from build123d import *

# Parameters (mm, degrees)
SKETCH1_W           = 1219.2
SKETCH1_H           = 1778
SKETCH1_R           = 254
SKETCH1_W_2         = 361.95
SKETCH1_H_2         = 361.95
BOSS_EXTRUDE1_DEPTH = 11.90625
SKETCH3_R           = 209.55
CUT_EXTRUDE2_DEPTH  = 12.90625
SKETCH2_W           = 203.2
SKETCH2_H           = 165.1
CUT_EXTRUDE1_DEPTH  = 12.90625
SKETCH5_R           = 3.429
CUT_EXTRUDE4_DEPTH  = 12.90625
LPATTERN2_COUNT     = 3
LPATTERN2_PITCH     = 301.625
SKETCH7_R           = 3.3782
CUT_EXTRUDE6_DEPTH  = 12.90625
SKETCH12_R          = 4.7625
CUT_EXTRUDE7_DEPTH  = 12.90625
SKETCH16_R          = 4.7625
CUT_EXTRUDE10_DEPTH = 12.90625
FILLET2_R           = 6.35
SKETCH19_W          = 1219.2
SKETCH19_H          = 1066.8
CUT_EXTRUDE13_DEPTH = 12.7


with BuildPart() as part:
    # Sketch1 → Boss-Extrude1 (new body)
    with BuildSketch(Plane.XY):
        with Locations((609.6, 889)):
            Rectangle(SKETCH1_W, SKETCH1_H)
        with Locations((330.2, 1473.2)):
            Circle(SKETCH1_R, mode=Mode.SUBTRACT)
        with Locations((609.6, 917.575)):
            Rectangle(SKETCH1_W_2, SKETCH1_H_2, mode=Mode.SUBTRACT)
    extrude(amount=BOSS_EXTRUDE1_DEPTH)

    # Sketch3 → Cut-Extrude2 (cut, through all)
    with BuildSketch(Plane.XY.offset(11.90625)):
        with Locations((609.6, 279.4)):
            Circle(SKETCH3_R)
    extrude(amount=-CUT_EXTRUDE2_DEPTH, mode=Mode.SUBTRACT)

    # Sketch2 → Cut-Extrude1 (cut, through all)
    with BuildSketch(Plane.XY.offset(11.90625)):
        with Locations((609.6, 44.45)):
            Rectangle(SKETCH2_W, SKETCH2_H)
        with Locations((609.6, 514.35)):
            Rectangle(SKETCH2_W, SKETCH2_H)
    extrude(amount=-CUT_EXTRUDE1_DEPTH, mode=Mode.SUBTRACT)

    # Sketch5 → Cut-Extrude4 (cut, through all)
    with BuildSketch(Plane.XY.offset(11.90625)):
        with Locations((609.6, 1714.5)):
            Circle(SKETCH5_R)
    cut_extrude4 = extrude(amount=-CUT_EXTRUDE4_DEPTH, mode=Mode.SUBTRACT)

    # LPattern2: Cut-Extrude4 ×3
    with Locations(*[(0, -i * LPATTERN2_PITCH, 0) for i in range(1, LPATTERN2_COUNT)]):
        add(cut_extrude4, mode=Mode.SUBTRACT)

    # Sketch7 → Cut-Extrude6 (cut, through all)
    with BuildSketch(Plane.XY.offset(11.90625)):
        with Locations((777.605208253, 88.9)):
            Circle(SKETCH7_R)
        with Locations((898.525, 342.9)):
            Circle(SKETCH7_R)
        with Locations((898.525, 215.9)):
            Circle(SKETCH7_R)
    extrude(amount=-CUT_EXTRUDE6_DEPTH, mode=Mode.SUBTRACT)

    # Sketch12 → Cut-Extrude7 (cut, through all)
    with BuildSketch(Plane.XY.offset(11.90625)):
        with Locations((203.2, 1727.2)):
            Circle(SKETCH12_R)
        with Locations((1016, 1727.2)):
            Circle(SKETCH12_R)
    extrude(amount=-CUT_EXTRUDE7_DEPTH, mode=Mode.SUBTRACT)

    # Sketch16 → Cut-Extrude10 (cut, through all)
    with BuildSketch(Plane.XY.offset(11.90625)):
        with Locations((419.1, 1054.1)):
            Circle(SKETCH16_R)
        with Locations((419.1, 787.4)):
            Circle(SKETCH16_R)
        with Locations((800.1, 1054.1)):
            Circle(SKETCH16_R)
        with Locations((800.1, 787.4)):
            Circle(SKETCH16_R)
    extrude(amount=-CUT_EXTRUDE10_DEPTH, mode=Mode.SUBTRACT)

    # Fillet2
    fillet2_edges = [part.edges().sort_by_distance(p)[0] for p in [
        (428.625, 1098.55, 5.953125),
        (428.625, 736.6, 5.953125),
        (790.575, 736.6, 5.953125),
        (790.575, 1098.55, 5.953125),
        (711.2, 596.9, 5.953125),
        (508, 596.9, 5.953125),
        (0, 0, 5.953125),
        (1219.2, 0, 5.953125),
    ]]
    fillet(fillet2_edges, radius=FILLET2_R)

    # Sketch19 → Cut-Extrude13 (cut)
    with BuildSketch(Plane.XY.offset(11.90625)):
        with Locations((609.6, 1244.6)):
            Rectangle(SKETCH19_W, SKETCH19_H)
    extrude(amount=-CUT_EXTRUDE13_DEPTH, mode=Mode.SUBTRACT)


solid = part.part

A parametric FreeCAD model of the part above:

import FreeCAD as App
import Part
import Sketcher

V = App.Vector
Q = App.Units.Quantity


def edges_at(feature, points):
    """Names of the edges that pass closest to the given points."""
    edges = feature.Shape.Edges
    near = lambda p: min(range(len(edges)), key=lambda i: edges[i].distToShape(Part.Vertex(*p))[0])
    return sorted({f"Edge{near(p) + 1}" for p in points})

doc = App.newDocument("Part")
body = doc.addObject("PartDesign::Body", "Body")

# Sketch on XY plane
sketch1 = doc.addObject("Sketcher::SketchObject", "Sketch")
body.addObject(sketch1)
sketch1.AttachmentSupport = (doc.XY_Plane, [""])
sketch1.MapMode = "FlatFace"
sketch1.addGeometry([
    Part.LineSegment(V(0, 1778, 0), V(0, 0, 0)),  # 0
    Part.LineSegment(V(0, 0, 0), V(1219.2, 0, 0)),  # 1
    Part.LineSegment(V(1219.2, 0, 0), V(1219.2, 1778, 0)),  # 2
    Part.LineSegment(V(1219.2, 1778, 0), V(0, 1778, 0)),  # 3
    Part.LineSegment(V(790.575, 736.6, 0), V(428.625, 736.6, 0)),  # 4
    Part.LineSegment(V(428.625, 736.6, 0), V(428.625, 1098.55, 0)),  # 5
    Part.LineSegment(V(428.625, 1098.55, 0), V(790.575, 1098.55, 0)),  # 6
    Part.LineSegment(V(790.575, 1098.55, 0), V(790.575, 736.6, 0)),  # 7
    Part.Circle(V(330.2, 1473.2, 0), V(0, 0, 1), 254),  # 8
], False)
sketch1.addConstraint([
    Sketcher.Constraint("Coincident", 0, 2, 1, 1),
    Sketcher.Constraint("Coincident", 1, 2, 2, 1),
    Sketcher.Constraint("Coincident", 2, 2, 3, 1),
    Sketcher.Constraint("Coincident", 3, 2, 0, 1),
    Sketcher.Constraint("Coincident", 4, 2, 5, 1),
    Sketcher.Constraint("Coincident", 5, 2, 6, 1),
    Sketcher.Constraint("Coincident", 6, 2, 7, 1),
    Sketcher.Constraint("Coincident", 7, 2, 4, 1),
    Sketcher.Constraint("Vertical", 0),
    Sketcher.Constraint("Horizontal", 1),
    Sketcher.Constraint("Vertical", 2),
    Sketcher.Constraint("Horizontal", 3),
    Sketcher.Constraint("Horizontal", 4),
    Sketcher.Constraint("Vertical", 5),
    Sketcher.Constraint("Horizontal", 6),
    Sketcher.Constraint("Vertical", 7),
    Sketcher.Constraint("Coincident", 0, 2, -1, 1),
    Sketcher.Constraint("Equal", 6, 5),
    Sketcher.Constraint("Diameter", 8, Q("20 in")),
    Sketcher.Constraint("DistanceX", 1, 1, 1, 2, Q("48 in")),
    Sketcher.Constraint("DistanceY", 0, 2, 0, 1, Q("70 in")),
    Sketcher.Constraint("DistanceX", -1, 1, 8, 3, Q("13 in")),
    Sketcher.Constraint("DistanceY", -1, 1, 8, 3, Q("58 in")),
    Sketcher.Constraint("DistanceY", -1, 1, 4, 2, Q("29 in")),
    Sketcher.Constraint("DistanceX", 4, 2, 4, 1, Q("14.25 in")),
    Sketcher.Constraint("DistanceX", -1, 1, 4, 2, Q("16.875 in")),
])
pad1 = doc.addObject("PartDesign::Pad", "Pad")
body.addObject(pad1)
pad1.Profile = sketch1
pad1.Length = Q("0.46875 in")

# Sketch on XY plane
sketch2 = doc.addObject("Sketcher::SketchObject", "Sketch001")
body.addObject(sketch2)
sketch2.AttachmentSupport = (doc.XY_Plane, [""])
sketch2.MapMode = "FlatFace"
sketch2.AttachmentOffset = App.Placement(V(0, 0, 0.46875 * 25.4), App.Rotation())
sketch2.addGeometry(Part.Circle(V(609.6, 279.4, 0), V(0, 0, 1), 209.55), False)
sketch2.addConstraint([
    Sketcher.Constraint("Diameter", 0, Q("16.5 in")),
    Sketcher.Constraint("DistanceX", -1, 1, 0, 3, Q("24 in")),
    Sketcher.Constraint("DistanceY", -1, 1, 0, 3, Q("11 in")),
])
pocket1 = doc.addObject("PartDesign::Pocket", "Pocket")
body.addObject(pocket1)
pocket1.Profile = sketch2
pocket1.Type = "ThroughAll"

# Sketch on XY plane
sketch3 = doc.addObject("Sketcher::SketchObject", "Sketch002")
body.addObject(sketch3)
sketch3.AttachmentSupport = (doc.XY_Plane, [""])
sketch3.MapMode = "FlatFace"
sketch3.AttachmentOffset = App.Placement(V(0, 0, 0.46875 * 25.4), App.Rotation())
sketch3.addGeometry([
    Part.LineSegment(V(508, 127, 0), V(508, -38.1, 0)),  # 0
    Part.LineSegment(V(508, -38.1, 0), V(711.2, -38.1, 0)),  # 1
    Part.LineSegment(V(711.2, -38.1, 0), V(711.2, 127, 0)),  # 2
    Part.LineSegment(V(711.2, 127, 0), V(508, 127, 0)),  # 3
    Part.LineSegment(V(508, 596.9, 0), V(508, 431.8, 0)),  # 4
    Part.LineSegment(V(508, 431.8, 0), V(711.2, 431.8, 0)),  # 5
    Part.LineSegment(V(711.2, 431.8, 0), V(711.2, 596.9, 0)),  # 6
    Part.LineSegment(V(711.2, 596.9, 0), V(508, 596.9, 0)),  # 7
], False)
sketch3.addConstraint([
    Sketcher.Constraint("Coincident", 0, 2, 1, 1),
    Sketcher.Constraint("Coincident", 1, 2, 2, 1),
    Sketcher.Constraint("Coincident", 2, 2, 3, 1),
    Sketcher.Constraint("Coincident", 3, 2, 0, 1),
    Sketcher.Constraint("Coincident", 4, 2, 5, 1),
    Sketcher.Constraint("Coincident", 5, 2, 6, 1),
    Sketcher.Constraint("Coincident", 6, 2, 7, 1),
    Sketcher.Constraint("Coincident", 7, 2, 4, 1),
    Sketcher.Constraint("Vertical", 0),
    Sketcher.Constraint("Horizontal", 1),
    Sketcher.Constraint("Vertical", 2),
    Sketcher.Constraint("Horizontal", 3),
    Sketcher.Constraint("Vertical", 4),
    Sketcher.Constraint("Horizontal", 5),
    Sketcher.Constraint("Vertical", 6),
    Sketcher.Constraint("Horizontal", 7),
    Sketcher.Constraint("Vertical", 3, 2, 4, 2),
    Sketcher.Constraint("Vertical", 2, 2, 5, 2),
    Sketcher.Constraint("Equal", 2, 4),
    Sketcher.Constraint("DistanceX", 1, 1, 1, 2, Q("8 in")),
    Sketcher.Constraint("DistanceY", 0, 2, 0, 1, Q("6.5 in")),
    Sketcher.Constraint("DistanceX", -1, 1, 0, 2, Q("20 in")),
    Sketcher.Constraint("DistanceY", -1, 1, 2, 2, Q("5 in")),
    Sketcher.Constraint("DistanceY", -1, 1, 4, 2, Q("17 in")),
])
pocket2 = doc.addObject("PartDesign::Pocket", "Pocket001")
body.addObject(pocket2)
pocket2.Profile = sketch3
pocket2.Type = "ThroughAll"

# Sketch on XY plane
sketch4 = doc.addObject("Sketcher::SketchObject", "Sketch003")
body.addObject(sketch4)
sketch4.AttachmentSupport = (doc.XY_Plane, [""])
sketch4.MapMode = "FlatFace"
sketch4.AttachmentOffset = App.Placement(V(0, 0, 0.46875 * 25.4), App.Rotation())
sketch4.addGeometry(Part.Circle(V(609.6, 1714.5, 0), V(0, 0, 1), 3.429), False)
sketch4.addConstraint([
    Sketcher.Constraint("Diameter", 0, Q("0.27 in")),
    Sketcher.Constraint("DistanceX", -1, 1, 0, 3, Q("24 in")),
    Sketcher.Constraint("DistanceY", -1, 1, 0, 3, Q("67.5 in")),
])
pocket3 = doc.addObject("PartDesign::Pocket", "Pocket002")
body.addObject(pocket3)
pocket3.Profile = sketch4
pocket3.Type = "ThroughAll"
doc.recompute()

linearpattern = doc.addObject("PartDesign::LinearPattern", "LinearPattern")
body.addObject(linearpattern)
linearpattern.Originals = [pocket3]
linearpattern.Direction = (doc.Y_Axis, [""])
linearpattern.Mode = "offset"
linearpattern.Offset = Q("11.875 in")
linearpattern.Occurrences = 3
linearpattern.Reversed = True
body.Tip = linearpattern

# Sketch on XY plane
sketch5 = doc.addObject("Sketcher::SketchObject", "Sketch004")
body.addObject(sketch5)
sketch5.AttachmentSupport = (doc.XY_Plane, [""])
sketch5.MapMode = "FlatFace"
sketch5.AttachmentOffset = App.Placement(V(0, 0, 0.46875 * 25.4), App.Rotation())
sketch5.addGeometry([
    Part.Circle(V(777.605208, 88.9, 0), V(0, 0, 1), 3.3782),
    Part.Circle(V(898.525, 342.9, 0), V(0, 0, 1), 3.3782),
    Part.Circle(V(898.525, 215.9, 0), V(0, 0, 1), 3.3782),
], False)
sketch5.addConstraint([
    Sketcher.Constraint("Equal", 0, 1),
    Sketcher.Constraint("Equal", 1, 2),
    Sketcher.Constraint("Vertical", 1, 3, 2, 3),
    Sketcher.Constraint("Diameter", 0, Q("0.266 in")),
    Sketcher.Constraint("DistanceY", 0, 3, 1, 3, Q("10 in")),
    Sketcher.Constraint("DistanceY", 2, 3, 1, 3, Q("5 in")),
    Sketcher.Constraint("DistanceY", -1, 1, 0, 3, Q("3.5 in")),
    Sketcher.Constraint("DistanceX", -1, 1, 1, 3, Q("35.375 in")),
    Sketcher.Constraint("DistanceX", -1, 1, 0, 3, Q("777.605208 mm")),
])
pocket4 = doc.addObject("PartDesign::Pocket", "Pocket003")
body.addObject(pocket4)
pocket4.Profile = sketch5
pocket4.Type = "ThroughAll"

# Sketch on XY plane
sketch6 = doc.addObject("Sketcher::SketchObject", "Sketch005")
body.addObject(sketch6)
sketch6.AttachmentSupport = (doc.XY_Plane, [""])
sketch6.MapMode = "FlatFace"
sketch6.AttachmentOffset = App.Placement(V(0, 0, 0.46875 * 25.4), App.Rotation())
sketch6.addGeometry([
    Part.Circle(V(203.2, 1727.2, 0), V(0, 0, 1), 4.7625),
    Part.Circle(V(1016, 1727.2, 0), V(0, 0, 1), 4.7625),
], False)
sketch6.addConstraint([
    Sketcher.Constraint("Equal", 0, 1),
    Sketcher.Constraint("Horizontal", 0, 3, 1, 3),
    Sketcher.Constraint("Diameter", 0, Q("0.375 in")),
    Sketcher.Constraint("DistanceX", -1, 1, 0, 3, Q("8 in")),
    Sketcher.Constraint("DistanceY", -1, 1, 0, 3, Q("68 in")),
    Sketcher.Constraint("DistanceX", -1, 1, 1, 3, Q("40 in")),
])
pocket5 = doc.addObject("PartDesign::Pocket", "Pocket004")
body.addObject(pocket5)
pocket5.Profile = sketch6
pocket5.Type = "ThroughAll"

# Sketch on XY plane
sketch7 = doc.addObject("Sketcher::SketchObject", "Sketch006")
body.addObject(sketch7)
sketch7.AttachmentSupport = (doc.XY_Plane, [""])
sketch7.MapMode = "FlatFace"
sketch7.AttachmentOffset = App.Placement(V(0, 0, 0.46875 * 25.4), App.Rotation())
sketch7.addGeometry([
    Part.Circle(V(419.1, 1054.1, 0), V(0, 0, 1), 4.7625),
    Part.Circle(V(419.1, 787.4, 0), V(0, 0, 1), 4.7625),
    Part.Circle(V(800.1, 1054.1, 0), V(0, 0, 1), 4.7625),
    Part.Circle(V(800.1, 787.4, 0), V(0, 0, 1), 4.7625),
], False)
sketch7.addConstraint([
    Sketcher.Constraint("Equal", 0, 1),
    Sketcher.Constraint("Equal", 1, 2),
    Sketcher.Constraint("Equal", 2, 3),
    Sketcher.Constraint("Horizontal", 0, 3, 2, 3),
    Sketcher.Constraint("Horizontal", 1, 3, 3, 3),
    Sketcher.Constraint("Vertical", 0, 3, 1, 3),
    Sketcher.Constraint("Vertical", 2, 3, 3, 3),
    Sketcher.Constraint("Diameter", 0, Q("0.375 in")),
    Sketcher.Constraint("DistanceY", -1, 1, 1, 3, Q("31 in")),
    Sketcher.Constraint("DistanceX", 0, 3, 2, 3, Q("15 in")),
    Sketcher.Constraint("DistanceX", -1, 1, 0, 3, Q("16.5 in")),
    Sketcher.Constraint("DistanceY", -1, 1, 0, 3, Q("41.5 in")),
])
pocket6 = doc.addObject("PartDesign::Pocket", "Pocket005")
body.addObject(pocket6)
pocket6.Profile = sketch7
pocket6.Type = "ThroughAll"
doc.recompute()

fillet = doc.addObject("PartDesign::Fillet", "Fillet")
body.addObject(fillet)
fillet.Base = (pocket6, edges_at(pocket6, [
    (428.625, 1098.55, 5.953),
    (428.625, 736.6, 5.953),
    (790.575, 736.6, 5.953),
    (790.575, 1098.55, 5.953),
    (711.2, 596.9, 5.953),
    (508, 596.9, 5.953),
    (0, 0, 5.953),
    (1219.2, 0, 5.953),
]))
fillet.Radius = Q("0.25 in")

# Sketch on XY plane
sketch8 = doc.addObject("Sketcher::SketchObject", "Sketch007")
body.addObject(sketch8)
sketch8.AttachmentSupport = (doc.XY_Plane, [""])
sketch8.MapMode = "FlatFace"
sketch8.AttachmentOffset = App.Placement(V(0, 0, 0.46875 * 25.4), App.Rotation())
sketch8.addGeometry([
    Part.LineSegment(V(0, 1778, 0), V(0, 711.2, 0)),
    Part.LineSegment(V(0, 711.2, 0), V(1219.2, 711.2, 0)),
    Part.LineSegment(V(1219.2, 711.2, 0), V(1219.2, 1778, 0)),
    Part.LineSegment(V(1219.2, 1778, 0), V(0, 1778, 0)),
], False)
sketch8.addConstraint([
    Sketcher.Constraint("Coincident", 0, 2, 1, 1),
    Sketcher.Constraint("Coincident", 1, 2, 2, 1),
    Sketcher.Constraint("Coincident", 2, 2, 3, 1),
    Sketcher.Constraint("Coincident", 3, 2, 0, 1),
    Sketcher.Constraint("Vertical", 0),
    Sketcher.Constraint("Horizontal", 1),
    Sketcher.Constraint("Vertical", 2),
    Sketcher.Constraint("Horizontal", 3),
    Sketcher.Constraint("PointOnObject", 0, 2, -2),
    Sketcher.Constraint("DistanceX", 1, 1, 1, 2, Q("48 in")),
    Sketcher.Constraint("DistanceY", 0, 2, 0, 1, Q("42 in")),
    Sketcher.Constraint("DistanceY", -1, 1, 0, 2, Q("28 in")),
])
pocket7 = doc.addObject("PartDesign::Pocket", "Pocket006")
body.addObject(pocket7)
pocket7.Profile = sketch8
pocket7.Length = Q("0.5 in")

doc.recompute()
